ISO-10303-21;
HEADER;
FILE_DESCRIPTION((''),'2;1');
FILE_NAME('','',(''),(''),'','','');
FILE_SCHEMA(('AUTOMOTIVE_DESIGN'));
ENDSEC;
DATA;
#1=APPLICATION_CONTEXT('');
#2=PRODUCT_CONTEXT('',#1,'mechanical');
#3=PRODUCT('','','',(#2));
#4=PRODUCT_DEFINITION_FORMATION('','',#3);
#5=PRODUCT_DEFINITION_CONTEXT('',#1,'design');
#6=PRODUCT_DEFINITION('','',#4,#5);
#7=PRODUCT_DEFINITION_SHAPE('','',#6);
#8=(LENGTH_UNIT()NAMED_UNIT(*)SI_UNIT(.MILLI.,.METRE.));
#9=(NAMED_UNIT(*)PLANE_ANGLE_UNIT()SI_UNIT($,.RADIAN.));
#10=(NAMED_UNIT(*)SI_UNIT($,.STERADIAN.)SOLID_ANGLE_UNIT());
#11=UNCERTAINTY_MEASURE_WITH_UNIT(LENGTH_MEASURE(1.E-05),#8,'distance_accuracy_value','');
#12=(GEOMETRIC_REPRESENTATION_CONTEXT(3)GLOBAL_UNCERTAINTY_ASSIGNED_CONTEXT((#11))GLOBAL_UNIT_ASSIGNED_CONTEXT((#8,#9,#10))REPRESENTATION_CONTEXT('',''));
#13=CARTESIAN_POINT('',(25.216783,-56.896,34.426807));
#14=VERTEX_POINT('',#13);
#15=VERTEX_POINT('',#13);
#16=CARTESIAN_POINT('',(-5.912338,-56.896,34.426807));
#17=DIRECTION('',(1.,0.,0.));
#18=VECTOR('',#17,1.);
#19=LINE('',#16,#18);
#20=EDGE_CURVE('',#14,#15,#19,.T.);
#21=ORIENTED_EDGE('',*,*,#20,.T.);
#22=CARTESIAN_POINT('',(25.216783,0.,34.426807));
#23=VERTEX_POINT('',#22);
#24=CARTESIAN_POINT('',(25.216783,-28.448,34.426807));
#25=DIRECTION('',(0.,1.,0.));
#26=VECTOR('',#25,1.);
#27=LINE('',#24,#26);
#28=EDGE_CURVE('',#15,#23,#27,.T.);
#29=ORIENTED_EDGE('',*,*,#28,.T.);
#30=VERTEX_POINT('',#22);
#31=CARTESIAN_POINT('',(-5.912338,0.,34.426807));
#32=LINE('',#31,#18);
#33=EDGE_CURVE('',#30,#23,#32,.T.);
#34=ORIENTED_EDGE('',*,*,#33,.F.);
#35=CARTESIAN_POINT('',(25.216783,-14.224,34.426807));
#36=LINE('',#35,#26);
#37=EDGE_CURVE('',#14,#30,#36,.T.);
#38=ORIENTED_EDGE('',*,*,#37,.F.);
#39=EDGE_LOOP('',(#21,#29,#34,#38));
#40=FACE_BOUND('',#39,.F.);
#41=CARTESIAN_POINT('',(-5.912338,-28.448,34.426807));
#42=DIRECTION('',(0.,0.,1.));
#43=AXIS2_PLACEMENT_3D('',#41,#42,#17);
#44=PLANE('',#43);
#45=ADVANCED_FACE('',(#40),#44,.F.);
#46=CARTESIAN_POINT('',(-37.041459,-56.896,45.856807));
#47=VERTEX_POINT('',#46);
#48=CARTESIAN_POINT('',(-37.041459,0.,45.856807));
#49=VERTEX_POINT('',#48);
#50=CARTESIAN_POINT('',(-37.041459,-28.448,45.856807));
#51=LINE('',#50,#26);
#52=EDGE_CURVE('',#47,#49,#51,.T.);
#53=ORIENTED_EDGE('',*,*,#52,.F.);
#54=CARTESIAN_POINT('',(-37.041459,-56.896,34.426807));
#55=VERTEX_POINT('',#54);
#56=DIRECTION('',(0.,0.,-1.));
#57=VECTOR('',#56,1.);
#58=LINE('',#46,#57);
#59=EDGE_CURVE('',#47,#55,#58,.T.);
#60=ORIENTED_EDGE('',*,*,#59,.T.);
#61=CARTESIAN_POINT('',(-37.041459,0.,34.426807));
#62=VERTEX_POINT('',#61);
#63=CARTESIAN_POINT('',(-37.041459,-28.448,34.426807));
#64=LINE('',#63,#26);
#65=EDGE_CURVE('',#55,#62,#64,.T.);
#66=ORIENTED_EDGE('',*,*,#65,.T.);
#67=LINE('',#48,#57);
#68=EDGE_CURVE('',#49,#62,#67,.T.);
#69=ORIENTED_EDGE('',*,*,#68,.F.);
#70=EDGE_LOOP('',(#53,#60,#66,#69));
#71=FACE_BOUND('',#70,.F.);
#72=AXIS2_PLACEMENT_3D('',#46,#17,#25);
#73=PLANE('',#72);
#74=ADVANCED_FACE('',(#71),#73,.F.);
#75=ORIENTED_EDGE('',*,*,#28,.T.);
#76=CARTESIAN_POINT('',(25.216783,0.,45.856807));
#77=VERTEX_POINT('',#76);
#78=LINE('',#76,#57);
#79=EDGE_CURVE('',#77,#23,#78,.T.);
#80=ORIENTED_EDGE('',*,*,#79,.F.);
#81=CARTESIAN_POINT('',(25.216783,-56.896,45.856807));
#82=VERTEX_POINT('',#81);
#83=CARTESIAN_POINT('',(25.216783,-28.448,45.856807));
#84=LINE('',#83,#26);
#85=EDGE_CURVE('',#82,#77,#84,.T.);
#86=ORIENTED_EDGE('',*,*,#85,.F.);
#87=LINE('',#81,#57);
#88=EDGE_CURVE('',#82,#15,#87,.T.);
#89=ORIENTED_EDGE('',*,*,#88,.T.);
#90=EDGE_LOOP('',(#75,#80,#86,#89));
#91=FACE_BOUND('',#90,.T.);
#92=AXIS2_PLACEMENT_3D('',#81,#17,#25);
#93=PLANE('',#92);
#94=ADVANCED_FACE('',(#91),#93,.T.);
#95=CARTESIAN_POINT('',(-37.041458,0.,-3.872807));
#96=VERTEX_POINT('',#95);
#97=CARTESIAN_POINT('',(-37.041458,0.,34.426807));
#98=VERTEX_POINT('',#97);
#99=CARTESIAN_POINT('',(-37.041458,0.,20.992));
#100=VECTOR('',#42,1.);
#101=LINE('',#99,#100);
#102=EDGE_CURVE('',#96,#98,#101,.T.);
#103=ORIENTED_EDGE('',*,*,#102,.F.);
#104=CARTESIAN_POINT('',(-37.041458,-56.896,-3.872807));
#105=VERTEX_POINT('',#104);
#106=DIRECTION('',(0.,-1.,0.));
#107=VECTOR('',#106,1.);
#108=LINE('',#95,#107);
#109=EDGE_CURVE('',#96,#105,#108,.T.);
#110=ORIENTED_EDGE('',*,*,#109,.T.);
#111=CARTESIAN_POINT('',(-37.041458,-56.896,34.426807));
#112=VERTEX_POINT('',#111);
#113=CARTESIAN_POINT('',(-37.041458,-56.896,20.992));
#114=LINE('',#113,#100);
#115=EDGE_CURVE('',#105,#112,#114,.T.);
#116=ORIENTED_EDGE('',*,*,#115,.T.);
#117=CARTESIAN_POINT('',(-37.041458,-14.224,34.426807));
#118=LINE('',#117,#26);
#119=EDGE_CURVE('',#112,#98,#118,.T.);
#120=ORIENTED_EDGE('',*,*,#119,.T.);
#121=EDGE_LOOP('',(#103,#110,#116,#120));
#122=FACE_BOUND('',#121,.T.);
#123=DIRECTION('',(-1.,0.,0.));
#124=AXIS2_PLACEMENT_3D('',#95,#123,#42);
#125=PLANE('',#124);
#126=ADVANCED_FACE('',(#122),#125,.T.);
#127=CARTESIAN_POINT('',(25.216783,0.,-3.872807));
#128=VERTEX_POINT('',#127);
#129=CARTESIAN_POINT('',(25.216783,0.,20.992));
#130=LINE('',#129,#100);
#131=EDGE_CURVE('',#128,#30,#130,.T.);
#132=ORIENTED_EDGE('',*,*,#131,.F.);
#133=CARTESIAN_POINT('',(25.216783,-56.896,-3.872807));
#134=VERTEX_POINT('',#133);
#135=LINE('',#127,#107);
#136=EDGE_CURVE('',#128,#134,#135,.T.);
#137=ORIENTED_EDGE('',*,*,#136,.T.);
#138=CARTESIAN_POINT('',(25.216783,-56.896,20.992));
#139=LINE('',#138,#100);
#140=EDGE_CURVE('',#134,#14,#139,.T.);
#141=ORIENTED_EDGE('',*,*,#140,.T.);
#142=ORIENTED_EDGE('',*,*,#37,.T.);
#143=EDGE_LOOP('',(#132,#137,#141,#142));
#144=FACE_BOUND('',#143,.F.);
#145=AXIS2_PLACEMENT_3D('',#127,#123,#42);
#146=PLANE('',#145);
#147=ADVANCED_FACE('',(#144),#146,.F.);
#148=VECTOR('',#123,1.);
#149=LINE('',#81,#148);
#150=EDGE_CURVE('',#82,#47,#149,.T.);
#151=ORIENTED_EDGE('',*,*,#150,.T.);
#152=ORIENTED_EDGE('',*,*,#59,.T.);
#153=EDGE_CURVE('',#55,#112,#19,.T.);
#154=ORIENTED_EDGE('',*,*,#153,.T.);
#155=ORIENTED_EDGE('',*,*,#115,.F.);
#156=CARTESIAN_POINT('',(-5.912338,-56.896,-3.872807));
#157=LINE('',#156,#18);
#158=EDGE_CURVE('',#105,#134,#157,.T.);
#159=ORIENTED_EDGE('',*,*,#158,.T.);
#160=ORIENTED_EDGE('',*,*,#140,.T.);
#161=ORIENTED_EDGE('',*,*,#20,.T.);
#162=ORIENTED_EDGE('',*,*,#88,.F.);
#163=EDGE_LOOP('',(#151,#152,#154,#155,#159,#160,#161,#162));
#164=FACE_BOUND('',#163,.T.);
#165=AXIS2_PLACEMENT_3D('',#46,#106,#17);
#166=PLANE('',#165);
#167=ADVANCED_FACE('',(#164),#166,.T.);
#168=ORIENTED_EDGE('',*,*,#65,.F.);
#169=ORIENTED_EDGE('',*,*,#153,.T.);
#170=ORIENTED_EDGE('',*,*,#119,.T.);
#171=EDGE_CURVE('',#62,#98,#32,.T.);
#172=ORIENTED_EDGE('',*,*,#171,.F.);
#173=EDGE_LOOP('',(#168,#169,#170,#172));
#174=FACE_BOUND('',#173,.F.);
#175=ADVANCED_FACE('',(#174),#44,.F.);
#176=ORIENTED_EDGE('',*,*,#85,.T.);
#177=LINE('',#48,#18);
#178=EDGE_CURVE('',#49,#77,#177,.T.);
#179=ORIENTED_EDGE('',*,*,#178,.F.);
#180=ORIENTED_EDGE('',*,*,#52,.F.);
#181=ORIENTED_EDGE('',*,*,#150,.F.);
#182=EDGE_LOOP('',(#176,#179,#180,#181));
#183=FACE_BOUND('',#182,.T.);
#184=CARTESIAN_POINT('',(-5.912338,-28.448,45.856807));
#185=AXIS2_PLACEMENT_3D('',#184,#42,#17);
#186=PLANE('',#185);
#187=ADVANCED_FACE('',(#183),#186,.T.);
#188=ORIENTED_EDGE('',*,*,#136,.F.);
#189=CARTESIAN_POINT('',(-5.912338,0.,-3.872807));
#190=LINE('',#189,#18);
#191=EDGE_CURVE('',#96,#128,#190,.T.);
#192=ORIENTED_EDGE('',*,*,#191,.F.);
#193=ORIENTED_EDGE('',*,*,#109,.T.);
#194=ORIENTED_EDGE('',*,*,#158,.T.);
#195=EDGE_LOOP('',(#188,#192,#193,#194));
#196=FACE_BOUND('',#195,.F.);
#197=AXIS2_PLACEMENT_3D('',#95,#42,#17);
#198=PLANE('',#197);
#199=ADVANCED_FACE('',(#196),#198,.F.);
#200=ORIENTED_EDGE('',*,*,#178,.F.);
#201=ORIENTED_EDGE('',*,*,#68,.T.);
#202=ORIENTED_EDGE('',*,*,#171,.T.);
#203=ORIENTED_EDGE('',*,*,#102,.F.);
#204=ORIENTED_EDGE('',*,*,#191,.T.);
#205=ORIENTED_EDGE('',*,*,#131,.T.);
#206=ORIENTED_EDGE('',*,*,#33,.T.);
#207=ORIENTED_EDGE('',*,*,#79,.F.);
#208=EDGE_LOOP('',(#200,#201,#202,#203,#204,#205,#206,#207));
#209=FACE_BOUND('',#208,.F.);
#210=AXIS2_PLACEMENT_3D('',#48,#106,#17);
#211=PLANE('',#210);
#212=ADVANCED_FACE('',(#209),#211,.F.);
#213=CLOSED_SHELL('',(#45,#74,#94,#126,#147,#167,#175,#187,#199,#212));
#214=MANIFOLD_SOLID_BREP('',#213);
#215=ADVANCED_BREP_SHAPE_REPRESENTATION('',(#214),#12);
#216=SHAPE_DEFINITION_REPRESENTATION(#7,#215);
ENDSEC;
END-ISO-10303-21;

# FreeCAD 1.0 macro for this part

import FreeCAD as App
import Part
import Sketcher

V = App.Vector
Q = App.Units.Quantity


def add_polygon(sketch, points):
    """Adds a closed chain of lines whose ends are joined by coincident constraints."""
    first, n = sketch.GeometryCount, len(points)
    for a, b in zip(points, points[1:] + points[:1]):
        sketch.addGeometry(Part.LineSegment(App.Vector(*a, 0), App.Vector(*b, 0)), False)
    for i in range(n):
        sketch.addConstraint(Sketcher.Constraint("Coincident", first + i, 2, first + (i + 1) % n, 1))

doc = App.newDocument("Part")
body = doc.addObject("PartDesign::Body", "Body")

sketch1 = body.newObject("Sketcher::SketchObject", "Sketch")
sketch1.AttachmentSupport = (doc.getObject("XZ_Plane"), [""])
sketch1.MapMode = "FlatFace"
add_polygon(sketch1, [(-37.041458, 45.856807), (-37.041458, -3.872807), (25.216783, -3.872807), (25.216783, 45.856807)])
sketch1.addConstraint(Sketcher.Constraint("Vertical", 0))
sketch1.addConstraint(Sketcher.Constraint("Horizontal", 1))
sketch1.addConstraint(Sketcher.Constraint("Vertical", 2))
sketch1.addConstraint(Sketcher.Constraint("Horizontal", 3))
sketch1.addConstraint(Sketcher.Constraint("DistanceX", 1, 1, 1, 2, Q("62.258241 mm")))
sketch1.addConstraint(Sketcher.Constraint("DistanceY", 0, 2, 0, 1, Q("49.729614 mm")))
sketch1.addConstraint(Sketcher.Constraint("DistanceX", 0, 2, -1, 1, Q("37.041458 mm")))
sketch1.addConstraint(Sketcher.Constraint("DistanceY", 0, 2, -1, 1, Q("3.872807 mm")))
pad1 = body.newObject("PartDesign::Pad", "Pad")
pad1.Profile = sketch1
pad1.Length = Q("2.24 in")

sketch2 = body.newObject("Sketcher::SketchObject", "Sketch001")
sketch2.AttachmentSupport = (doc.getObject("XY_Plane"), [""])
sketch2.MapMode = "FlatFace"
sketch2.AttachmentOffset = App.Placement(V(0, 0, 45.856807), App.Rotation())
add_polygon(sketch2, [(-37.041459, 0), (-37.041459, -56.896), (25.216783, -56.896), (25.216783, 0)])
sketch2.addConstraint(Sketcher.Constraint("Vertical", 0))
sketch2.addConstraint(Sketcher.Constraint("Horizontal", 1))
sketch2.addConstraint(Sketcher.Constraint("Vertical", 2))
sketch2.addConstraint(Sketcher.Constraint("Horizontal", 3))
sketch2.addConstraint(Sketcher.Constraint("PointOnObject", 2, 2, -1))
sketch2.addConstraint(Sketcher.Constraint("DistanceY", 0, 2, 0, 1, Q("2.24 in")))
sketch2.addConstraint(Sketcher.Constraint("DistanceX", 1, 1, 1, 2, Q("62.258242 mm")))
sketch2.addConstraint(Sketcher.Constraint("DistanceX", 0, 2, -1, 1, Q("37.041459 mm")))
pad2 = body.newObject("PartDesign::Pad", "Pad001")
pad2.Profile = sketch2
pad2.Length = Q("0.45 in")
pad2.Reversed = True

doc.recompute()
